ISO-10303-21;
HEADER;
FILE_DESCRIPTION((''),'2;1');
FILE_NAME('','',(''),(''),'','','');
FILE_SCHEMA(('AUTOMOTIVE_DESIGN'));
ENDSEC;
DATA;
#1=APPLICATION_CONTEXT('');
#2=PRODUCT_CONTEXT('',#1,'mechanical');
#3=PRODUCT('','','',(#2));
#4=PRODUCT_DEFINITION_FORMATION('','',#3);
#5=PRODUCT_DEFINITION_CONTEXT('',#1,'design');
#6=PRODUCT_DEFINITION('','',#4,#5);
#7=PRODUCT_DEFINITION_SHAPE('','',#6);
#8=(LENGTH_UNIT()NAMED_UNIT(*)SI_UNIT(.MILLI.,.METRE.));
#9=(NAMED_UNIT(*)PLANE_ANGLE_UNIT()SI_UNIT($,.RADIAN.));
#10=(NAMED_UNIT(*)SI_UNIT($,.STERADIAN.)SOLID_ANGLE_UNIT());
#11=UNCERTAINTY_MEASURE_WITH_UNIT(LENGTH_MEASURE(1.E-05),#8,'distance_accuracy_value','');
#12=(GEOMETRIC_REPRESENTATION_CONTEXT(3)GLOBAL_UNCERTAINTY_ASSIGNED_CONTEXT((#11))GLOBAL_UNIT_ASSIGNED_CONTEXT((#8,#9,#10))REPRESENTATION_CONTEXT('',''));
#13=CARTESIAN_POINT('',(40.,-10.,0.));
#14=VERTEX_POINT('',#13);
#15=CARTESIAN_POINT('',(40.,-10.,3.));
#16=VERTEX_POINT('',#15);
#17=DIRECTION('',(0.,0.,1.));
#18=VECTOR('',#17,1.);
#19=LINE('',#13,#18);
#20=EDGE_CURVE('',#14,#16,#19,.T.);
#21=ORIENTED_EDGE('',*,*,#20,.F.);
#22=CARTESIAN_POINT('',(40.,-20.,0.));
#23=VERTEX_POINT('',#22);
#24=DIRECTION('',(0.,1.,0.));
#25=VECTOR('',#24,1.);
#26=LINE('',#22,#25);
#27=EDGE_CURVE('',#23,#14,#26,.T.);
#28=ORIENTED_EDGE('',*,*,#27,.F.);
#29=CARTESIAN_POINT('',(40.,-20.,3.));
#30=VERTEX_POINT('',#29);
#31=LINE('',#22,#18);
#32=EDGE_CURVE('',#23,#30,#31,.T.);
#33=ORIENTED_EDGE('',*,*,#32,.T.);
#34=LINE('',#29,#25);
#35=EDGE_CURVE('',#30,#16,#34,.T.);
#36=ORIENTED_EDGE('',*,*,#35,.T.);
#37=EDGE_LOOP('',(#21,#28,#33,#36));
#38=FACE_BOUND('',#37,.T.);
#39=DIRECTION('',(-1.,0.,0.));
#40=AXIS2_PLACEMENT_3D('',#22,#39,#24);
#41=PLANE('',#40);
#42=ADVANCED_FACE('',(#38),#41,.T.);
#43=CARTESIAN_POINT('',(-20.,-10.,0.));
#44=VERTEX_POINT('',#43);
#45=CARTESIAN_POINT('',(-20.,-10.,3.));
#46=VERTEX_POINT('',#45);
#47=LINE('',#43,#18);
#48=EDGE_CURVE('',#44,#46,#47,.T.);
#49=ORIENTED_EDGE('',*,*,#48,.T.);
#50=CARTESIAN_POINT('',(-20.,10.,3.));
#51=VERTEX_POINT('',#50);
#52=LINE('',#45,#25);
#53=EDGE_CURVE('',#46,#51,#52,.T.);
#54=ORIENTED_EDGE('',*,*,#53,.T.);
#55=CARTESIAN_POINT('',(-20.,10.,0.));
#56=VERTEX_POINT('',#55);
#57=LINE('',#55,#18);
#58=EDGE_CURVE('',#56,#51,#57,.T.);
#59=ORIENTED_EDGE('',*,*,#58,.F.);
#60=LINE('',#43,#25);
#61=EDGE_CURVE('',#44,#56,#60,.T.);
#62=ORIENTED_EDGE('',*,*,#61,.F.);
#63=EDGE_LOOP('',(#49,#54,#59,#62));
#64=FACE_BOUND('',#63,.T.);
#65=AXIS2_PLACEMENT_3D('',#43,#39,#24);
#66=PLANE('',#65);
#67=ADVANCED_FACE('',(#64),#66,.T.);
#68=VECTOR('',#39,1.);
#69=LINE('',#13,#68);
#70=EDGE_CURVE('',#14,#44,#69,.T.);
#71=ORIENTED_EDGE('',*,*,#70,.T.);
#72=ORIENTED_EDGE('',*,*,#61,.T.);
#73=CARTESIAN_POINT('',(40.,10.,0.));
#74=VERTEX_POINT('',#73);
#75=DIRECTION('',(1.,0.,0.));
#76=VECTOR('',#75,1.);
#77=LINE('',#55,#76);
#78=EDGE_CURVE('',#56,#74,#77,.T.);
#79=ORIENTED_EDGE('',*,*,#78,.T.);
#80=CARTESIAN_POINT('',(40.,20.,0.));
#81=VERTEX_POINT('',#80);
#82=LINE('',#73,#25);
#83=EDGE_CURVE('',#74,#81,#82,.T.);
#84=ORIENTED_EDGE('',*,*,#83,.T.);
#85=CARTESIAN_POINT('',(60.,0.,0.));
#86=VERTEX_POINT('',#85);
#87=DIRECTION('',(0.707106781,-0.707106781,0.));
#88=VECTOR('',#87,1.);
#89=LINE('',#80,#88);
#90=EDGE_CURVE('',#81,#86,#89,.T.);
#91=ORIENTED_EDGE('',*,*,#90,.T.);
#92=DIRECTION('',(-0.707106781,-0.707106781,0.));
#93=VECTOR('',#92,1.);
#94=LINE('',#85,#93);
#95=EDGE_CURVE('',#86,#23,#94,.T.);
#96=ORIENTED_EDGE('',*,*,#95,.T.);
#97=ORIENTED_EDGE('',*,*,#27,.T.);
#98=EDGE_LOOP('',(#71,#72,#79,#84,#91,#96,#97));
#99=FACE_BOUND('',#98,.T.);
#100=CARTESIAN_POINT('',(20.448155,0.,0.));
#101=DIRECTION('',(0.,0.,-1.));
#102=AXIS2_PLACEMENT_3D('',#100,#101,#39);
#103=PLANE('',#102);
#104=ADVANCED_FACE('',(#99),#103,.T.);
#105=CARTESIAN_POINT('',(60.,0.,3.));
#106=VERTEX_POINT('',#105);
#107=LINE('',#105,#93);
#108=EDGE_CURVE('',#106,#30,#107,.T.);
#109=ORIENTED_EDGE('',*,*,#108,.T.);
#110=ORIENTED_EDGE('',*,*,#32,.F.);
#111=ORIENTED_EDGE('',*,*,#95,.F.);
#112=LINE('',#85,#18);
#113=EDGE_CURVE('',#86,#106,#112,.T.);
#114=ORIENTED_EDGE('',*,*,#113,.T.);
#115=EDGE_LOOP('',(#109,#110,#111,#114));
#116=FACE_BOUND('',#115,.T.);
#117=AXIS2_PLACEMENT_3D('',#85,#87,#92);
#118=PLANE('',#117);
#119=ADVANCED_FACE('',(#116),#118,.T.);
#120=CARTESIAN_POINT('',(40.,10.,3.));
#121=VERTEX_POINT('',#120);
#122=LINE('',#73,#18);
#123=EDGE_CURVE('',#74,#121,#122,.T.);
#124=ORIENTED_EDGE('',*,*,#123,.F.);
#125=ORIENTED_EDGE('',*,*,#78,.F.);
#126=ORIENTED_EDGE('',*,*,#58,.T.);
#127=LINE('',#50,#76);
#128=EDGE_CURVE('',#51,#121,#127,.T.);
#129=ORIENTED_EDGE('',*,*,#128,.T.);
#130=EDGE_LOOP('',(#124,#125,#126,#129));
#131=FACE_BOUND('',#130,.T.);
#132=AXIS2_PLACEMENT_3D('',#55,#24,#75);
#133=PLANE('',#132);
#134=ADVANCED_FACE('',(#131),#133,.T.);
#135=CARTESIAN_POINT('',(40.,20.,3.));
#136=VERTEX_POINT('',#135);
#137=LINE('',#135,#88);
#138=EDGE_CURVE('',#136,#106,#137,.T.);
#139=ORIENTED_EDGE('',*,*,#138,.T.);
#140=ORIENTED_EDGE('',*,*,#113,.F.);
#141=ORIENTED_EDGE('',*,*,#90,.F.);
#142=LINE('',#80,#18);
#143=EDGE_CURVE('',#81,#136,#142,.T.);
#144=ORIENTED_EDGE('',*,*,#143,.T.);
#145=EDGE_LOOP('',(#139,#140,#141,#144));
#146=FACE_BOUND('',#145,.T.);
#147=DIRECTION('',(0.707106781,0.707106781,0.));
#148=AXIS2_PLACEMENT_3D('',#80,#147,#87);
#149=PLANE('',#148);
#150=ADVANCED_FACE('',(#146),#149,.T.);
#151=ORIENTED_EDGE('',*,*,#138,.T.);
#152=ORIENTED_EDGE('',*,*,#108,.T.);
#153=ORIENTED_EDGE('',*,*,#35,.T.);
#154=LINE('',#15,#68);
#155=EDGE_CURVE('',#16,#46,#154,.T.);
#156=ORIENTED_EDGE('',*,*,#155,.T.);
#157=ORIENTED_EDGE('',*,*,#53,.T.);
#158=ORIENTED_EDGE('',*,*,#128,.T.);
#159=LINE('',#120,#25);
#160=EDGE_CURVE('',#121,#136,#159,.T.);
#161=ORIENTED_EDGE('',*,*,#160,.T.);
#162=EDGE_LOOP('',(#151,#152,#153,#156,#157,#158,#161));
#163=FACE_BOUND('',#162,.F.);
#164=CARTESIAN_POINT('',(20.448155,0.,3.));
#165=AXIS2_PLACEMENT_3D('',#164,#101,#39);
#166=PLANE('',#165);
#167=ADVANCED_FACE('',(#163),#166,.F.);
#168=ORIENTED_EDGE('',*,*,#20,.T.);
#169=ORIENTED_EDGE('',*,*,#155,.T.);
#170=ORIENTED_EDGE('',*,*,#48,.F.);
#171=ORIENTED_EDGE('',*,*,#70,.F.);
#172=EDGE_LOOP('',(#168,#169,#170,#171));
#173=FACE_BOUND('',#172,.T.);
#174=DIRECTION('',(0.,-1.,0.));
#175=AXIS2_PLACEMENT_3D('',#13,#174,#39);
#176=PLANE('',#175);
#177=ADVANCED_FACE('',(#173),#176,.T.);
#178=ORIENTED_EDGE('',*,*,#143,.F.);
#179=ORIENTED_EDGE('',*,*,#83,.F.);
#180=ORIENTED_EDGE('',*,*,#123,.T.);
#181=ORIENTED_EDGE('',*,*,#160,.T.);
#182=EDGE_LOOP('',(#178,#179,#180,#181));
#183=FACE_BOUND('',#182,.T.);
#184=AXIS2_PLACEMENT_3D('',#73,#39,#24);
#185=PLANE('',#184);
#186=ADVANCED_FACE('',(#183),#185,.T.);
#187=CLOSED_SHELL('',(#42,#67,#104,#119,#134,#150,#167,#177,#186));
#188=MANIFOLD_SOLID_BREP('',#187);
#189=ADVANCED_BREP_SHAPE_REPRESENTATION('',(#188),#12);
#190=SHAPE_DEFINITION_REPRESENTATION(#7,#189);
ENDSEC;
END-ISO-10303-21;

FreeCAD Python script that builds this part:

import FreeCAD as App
import Part
import Sketcher

doc = App.newDocument("Part")
body = doc.addObject("PartDesign::Body", "Body")

# Sketch on XY plane
sketch1 = doc.addObject("Sketcher::SketchObject", "Sketch")
body.addObject(sketch1)
sketch1.AttachmentSupport = (doc.XY_Plane, [""])
sketch1.MapMode = "FlatFace"
sketch1.addGeometry(Part.LineSegment(App.Vector(40, 10, 0), App.Vector(-20, 10, 0)), False)
sketch1.addGeometry(Part.LineSegment(App.Vector(-20, 10, 0), App.Vector(-20, -10, 0)), False)
sketch1.addGeometry(Part.LineSegment(App.Vector(-20, -10, 0), App.Vector(40, -10, 0)), False)
sketch1.addGeometry(Part.LineSegment(App.Vector(40, -10, 0), App.Vector(40, -20, 0)), False)
sketch1.addGeometry(Part.LineSegment(App.Vector(40, -20, 0), App.Vector(60, 0, 0)), False)
sketch1.addGeometry(Part.LineSegment(App.Vector(60, 0, 0), App.Vector(40, 20, 0)), False)
sketch1.addGeometry(Part.LineSegment(App.Vector(40, 20, 0), App.Vector(40, 10, 0)), False)
sketch1.addConstraint(Sketcher.Constraint("Coincident", 0, 2, 1, 1))
sketch1.addConstraint(Sketcher.Constraint("Coincident", 1, 2, 2, 1))
sketch1.addConstraint(Sketcher.Constraint("Coincident", 2, 2, 3, 1))
sketch1.addConstraint(Sketcher.Constraint("Coincident", 3, 2, 4, 1))
sketch1.addConstraint(Sketcher.Constraint("Coincident", 4, 2, 5, 1))
sketch1.addConstraint(Sketcher.Constraint("Coincident", 5, 2, 6, 1))
sketch1.addConstraint(Sketcher.Constraint("Coincident", 6, 2, 0, 1))
sketch1.addConstraint(Sketcher.Constraint("Horizontal", 0))
sketch1.addConstraint(Sketcher.Constraint("Vertical", 1))
sketch1.addConstraint(Sketcher.Constraint("Horizontal", 2))
sketch1.addConstraint(Sketcher.Constraint("Vertical", 3))
sketch1.addConstraint(Sketcher.Constraint("Vertical", 6))
sketch1.addConstraint(Sketcher.Constraint("Symmetric", 3, 2, 5, 2, -1))
sketch1.addConstraint(Sketcher.Constraint("PointOnObject", 4, 2, -1))
sketch1.addConstraint(Sketcher.Constraint("Perpendicular", 4, 5))
sketch1.addConstraint(Sketcher.Constraint("Equal", 3, 6))
sketch1.addConstraint(Sketcher.Constraint("DistanceX", 0, 2, 0, 1, 60.0))
sketch1.addConstraint(Sketcher.Constraint("DistanceY", 1, 2, 1, 1, 20.0))
sketch1.addConstraint(Sketcher.Constraint("DistanceY", 3, 2, 3, 1, 10.0))
sketch1.addConstraint(Sketcher.Constraint("DistanceX", 0, 2, -1, 1, 20.0))
pad1 = doc.addObject("PartDesign::Pad", "Pad")
body.addObject(pad1)
pad1.Profile = sketch1
pad1.Length = 3

doc.recompute()
